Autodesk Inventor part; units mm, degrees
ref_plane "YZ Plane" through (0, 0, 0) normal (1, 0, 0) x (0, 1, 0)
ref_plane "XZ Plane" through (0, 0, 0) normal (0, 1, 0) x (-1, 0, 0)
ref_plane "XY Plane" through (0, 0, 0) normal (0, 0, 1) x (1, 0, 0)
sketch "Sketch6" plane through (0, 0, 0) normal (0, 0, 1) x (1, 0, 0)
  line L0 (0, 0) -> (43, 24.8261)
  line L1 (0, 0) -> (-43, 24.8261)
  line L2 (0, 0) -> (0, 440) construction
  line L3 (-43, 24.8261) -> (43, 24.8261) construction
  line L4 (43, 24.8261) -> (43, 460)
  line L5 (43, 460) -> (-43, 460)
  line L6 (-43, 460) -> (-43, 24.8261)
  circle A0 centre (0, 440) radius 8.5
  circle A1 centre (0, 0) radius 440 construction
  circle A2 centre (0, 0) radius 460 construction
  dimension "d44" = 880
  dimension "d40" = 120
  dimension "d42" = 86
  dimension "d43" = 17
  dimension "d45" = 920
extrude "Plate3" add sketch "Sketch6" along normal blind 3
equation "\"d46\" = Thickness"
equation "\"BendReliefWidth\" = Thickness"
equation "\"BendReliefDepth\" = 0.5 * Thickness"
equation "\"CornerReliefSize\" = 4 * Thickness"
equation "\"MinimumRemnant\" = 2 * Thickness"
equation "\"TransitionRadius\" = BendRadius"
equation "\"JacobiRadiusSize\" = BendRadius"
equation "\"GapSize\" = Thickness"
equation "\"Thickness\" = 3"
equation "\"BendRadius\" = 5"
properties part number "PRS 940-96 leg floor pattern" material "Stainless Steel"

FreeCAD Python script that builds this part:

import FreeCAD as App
import Part
import Sketcher
Q = App.Units.Quantity


def add_polygon(sketch, points):
    """Adds a closed chain of lines whose ends are joined by coincident constraints."""
    first, n = sketch.GeometryCount, len(points)
    for a, b in zip(points, points[1:] + points[:1]):
        sketch.addGeometry(Part.LineSegment(App.Vector(*a, 0), App.Vector(*b, 0)), False)
    for i in range(n):
        sketch.addConstraint(Sketcher.Constraint("Coincident", first + i, 2, first + (i + 1) % n, 1))

doc = App.newDocument("Part")
body = doc.addObject("PartDesign::Body", "Body")

# Sketch on XY plane
sketch1 = body.newObject("Sketcher::SketchObject", "Sketch")
sketch1.AttachmentSupport = (doc.getObject("XY_Plane"), [""])
sketch1.MapMode = "FlatFace"
add_polygon(sketch1, [(-43, 25), (0, 0), (43, 25), (43, 460), (-43, 460)])  # lines 0-4
sketch1.addGeometry(Part.Circle(App.Vector(0, 440, 0), App.Vector(0, 0, 1), 8), False)  # 5
sketch1.addConstraint(Sketcher.Constraint("Vertical", 2))
sketch1.addConstraint(Sketcher.Constraint("Horizontal", 3))
sketch1.addConstraint(Sketcher.Constraint("Vertical", 4))
sketch1.addConstraint(Sketcher.Constraint("Coincident", 0, 2, -1, 1))
sketch1.addConstraint(Sketcher.Constraint("Symmetric", 1, 2, 4, 2, -2))
sketch1.addConstraint(Sketcher.Constraint("PointOnObject", 5, 3, -2))
sketch1.addConstraint(Sketcher.Constraint("Diameter", 5, Q("17 mm")))
sketch1.addConstraint(Sketcher.Constraint("DistanceX", 3, 2, 3, 1, Q("86 mm")))
sketch1.addConstraint(Sketcher.Constraint("Angle", 0, Q("-30 deg")))
sketch1.addConstraint(Sketcher.Constraint("DistanceY", -1, 1, 5, 3, Q("440 mm")))
sketch1.addConstraint(Sketcher.Constraint("DistanceY", -1, 1, 2, 2, Q("460 mm")))
pad1 = body.newObject("PartDesign::Pad", "Pad")
pad1.Profile = sketch1
pad1.Length = 3

doc.recompute()
